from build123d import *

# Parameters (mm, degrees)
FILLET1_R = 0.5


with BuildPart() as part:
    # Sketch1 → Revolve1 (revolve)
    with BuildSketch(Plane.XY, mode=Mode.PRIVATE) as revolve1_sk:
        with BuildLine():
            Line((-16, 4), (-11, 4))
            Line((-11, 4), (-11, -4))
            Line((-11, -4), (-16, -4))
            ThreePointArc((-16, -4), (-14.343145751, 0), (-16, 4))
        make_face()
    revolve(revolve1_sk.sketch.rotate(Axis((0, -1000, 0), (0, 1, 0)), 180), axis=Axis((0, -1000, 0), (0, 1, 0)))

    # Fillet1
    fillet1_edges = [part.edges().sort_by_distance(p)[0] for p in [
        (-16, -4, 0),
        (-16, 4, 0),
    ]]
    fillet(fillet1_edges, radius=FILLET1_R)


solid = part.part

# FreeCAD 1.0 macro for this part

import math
import FreeCAD as App
import Part
import Sketcher

V = App.Vector
Q = App.Units.Quantity


def edges_at(feature, points):
    """Names of the edges that pass closest to the given points."""
    edges = feature.Shape.Edges
    near = lambda p: min(range(len(edges)), key=lambda i: edges[i].distToShape(Part.Vertex(*p))[0])
    return sorted({f"Edge{near(p) + 1}" for p in points})

doc = App.newDocument("Part")
params = doc.addObject("Spreadsheet::Sheet", "Params")
for row, (alias, value) in enumerate([
    ("sketch1_width", "5 mm"),
    ("sketch1_height", "8 mm"),
    ("revolution_angle", "360 deg"),
    ("fillet_radius", "0.5 mm"),
], start=1):
    params.set(f"A{row}", alias)
    params.set(f"B{row}", "=" + value)
    params.setAlias(f"B{row}", alias)

body = doc.addObject("PartDesign::Body", "Body")

# Sketch on XY plane
sketch1 = body.newObject("Sketcher::SketchObject", "Sketch")
sketch1.AttachmentSupport = (doc.getObject("XY_Plane"), [""])
sketch1.MapMode = "FlatFace"
sketch1.addGeometry([
    Part.LineSegment(V(-11, 4, 0), V(-16, 4, 0)),
    Part.ArcOfCircle(Part.Circle(V(-20, 0, 0), V(0, 0, 1), 6), math.radians(-45), math.radians(45)),
    Part.LineSegment(V(-16, -4, 0), V(-11, -4, 0)),
    Part.LineSegment(V(-11, -4, 0), V(-11, 4, 0)),
], False)
sketch1.addConstraint([
    Sketcher.Constraint("Coincident", 0, 2, 1, 2),
    Sketcher.Constraint("Coincident", 1, 1, 2, 1),
    Sketcher.Constraint("Coincident", 2, 2, 3, 1),
    Sketcher.Constraint("Coincident", 3, 2, 0, 1),
    Sketcher.Constraint("Horizontal", 0),
    Sketcher.Constraint("Horizontal", 2),
    Sketcher.Constraint("Vertical", 3),
    Sketcher.Constraint("Symmetric", 0, 2, 1, 1, -1),
    Sketcher.Constraint("DistanceX", 0, 2, 0, 1, Q("5 mm")),
    Sketcher.Constraint("DistanceY", 3, 1, 3, 2, Q("8 mm")),
    Sketcher.Constraint("DistanceX", 1, 3, -1, 1, Q("20 mm")),
    Sketcher.Constraint("DistanceX", 0, 2, -1, 1, Q("16 mm")),
])
sketch1.setExpression("Constraints[8]", "Params.sketch1_width")
sketch1.setExpression("Constraints[9]", "Params.sketch1_height")
revolution = body.newObject("PartDesign::Revolution", "Revolution")
revolution.Profile = sketch1
revolution.ReferenceAxis = (sketch1, ["V_Axis"])
revolution.setExpression("Angle", "Params.revolution_angle")
doc.recompute()

fillet = body.newObject("PartDesign::Fillet", "Fillet")
fillet.Base = (revolution, edges_at(revolution, [(-16, -4, 0), (-16, 4, 0)]))
fillet.setExpression("Radius", "Params.fillet_radius")

doc.recompute()
